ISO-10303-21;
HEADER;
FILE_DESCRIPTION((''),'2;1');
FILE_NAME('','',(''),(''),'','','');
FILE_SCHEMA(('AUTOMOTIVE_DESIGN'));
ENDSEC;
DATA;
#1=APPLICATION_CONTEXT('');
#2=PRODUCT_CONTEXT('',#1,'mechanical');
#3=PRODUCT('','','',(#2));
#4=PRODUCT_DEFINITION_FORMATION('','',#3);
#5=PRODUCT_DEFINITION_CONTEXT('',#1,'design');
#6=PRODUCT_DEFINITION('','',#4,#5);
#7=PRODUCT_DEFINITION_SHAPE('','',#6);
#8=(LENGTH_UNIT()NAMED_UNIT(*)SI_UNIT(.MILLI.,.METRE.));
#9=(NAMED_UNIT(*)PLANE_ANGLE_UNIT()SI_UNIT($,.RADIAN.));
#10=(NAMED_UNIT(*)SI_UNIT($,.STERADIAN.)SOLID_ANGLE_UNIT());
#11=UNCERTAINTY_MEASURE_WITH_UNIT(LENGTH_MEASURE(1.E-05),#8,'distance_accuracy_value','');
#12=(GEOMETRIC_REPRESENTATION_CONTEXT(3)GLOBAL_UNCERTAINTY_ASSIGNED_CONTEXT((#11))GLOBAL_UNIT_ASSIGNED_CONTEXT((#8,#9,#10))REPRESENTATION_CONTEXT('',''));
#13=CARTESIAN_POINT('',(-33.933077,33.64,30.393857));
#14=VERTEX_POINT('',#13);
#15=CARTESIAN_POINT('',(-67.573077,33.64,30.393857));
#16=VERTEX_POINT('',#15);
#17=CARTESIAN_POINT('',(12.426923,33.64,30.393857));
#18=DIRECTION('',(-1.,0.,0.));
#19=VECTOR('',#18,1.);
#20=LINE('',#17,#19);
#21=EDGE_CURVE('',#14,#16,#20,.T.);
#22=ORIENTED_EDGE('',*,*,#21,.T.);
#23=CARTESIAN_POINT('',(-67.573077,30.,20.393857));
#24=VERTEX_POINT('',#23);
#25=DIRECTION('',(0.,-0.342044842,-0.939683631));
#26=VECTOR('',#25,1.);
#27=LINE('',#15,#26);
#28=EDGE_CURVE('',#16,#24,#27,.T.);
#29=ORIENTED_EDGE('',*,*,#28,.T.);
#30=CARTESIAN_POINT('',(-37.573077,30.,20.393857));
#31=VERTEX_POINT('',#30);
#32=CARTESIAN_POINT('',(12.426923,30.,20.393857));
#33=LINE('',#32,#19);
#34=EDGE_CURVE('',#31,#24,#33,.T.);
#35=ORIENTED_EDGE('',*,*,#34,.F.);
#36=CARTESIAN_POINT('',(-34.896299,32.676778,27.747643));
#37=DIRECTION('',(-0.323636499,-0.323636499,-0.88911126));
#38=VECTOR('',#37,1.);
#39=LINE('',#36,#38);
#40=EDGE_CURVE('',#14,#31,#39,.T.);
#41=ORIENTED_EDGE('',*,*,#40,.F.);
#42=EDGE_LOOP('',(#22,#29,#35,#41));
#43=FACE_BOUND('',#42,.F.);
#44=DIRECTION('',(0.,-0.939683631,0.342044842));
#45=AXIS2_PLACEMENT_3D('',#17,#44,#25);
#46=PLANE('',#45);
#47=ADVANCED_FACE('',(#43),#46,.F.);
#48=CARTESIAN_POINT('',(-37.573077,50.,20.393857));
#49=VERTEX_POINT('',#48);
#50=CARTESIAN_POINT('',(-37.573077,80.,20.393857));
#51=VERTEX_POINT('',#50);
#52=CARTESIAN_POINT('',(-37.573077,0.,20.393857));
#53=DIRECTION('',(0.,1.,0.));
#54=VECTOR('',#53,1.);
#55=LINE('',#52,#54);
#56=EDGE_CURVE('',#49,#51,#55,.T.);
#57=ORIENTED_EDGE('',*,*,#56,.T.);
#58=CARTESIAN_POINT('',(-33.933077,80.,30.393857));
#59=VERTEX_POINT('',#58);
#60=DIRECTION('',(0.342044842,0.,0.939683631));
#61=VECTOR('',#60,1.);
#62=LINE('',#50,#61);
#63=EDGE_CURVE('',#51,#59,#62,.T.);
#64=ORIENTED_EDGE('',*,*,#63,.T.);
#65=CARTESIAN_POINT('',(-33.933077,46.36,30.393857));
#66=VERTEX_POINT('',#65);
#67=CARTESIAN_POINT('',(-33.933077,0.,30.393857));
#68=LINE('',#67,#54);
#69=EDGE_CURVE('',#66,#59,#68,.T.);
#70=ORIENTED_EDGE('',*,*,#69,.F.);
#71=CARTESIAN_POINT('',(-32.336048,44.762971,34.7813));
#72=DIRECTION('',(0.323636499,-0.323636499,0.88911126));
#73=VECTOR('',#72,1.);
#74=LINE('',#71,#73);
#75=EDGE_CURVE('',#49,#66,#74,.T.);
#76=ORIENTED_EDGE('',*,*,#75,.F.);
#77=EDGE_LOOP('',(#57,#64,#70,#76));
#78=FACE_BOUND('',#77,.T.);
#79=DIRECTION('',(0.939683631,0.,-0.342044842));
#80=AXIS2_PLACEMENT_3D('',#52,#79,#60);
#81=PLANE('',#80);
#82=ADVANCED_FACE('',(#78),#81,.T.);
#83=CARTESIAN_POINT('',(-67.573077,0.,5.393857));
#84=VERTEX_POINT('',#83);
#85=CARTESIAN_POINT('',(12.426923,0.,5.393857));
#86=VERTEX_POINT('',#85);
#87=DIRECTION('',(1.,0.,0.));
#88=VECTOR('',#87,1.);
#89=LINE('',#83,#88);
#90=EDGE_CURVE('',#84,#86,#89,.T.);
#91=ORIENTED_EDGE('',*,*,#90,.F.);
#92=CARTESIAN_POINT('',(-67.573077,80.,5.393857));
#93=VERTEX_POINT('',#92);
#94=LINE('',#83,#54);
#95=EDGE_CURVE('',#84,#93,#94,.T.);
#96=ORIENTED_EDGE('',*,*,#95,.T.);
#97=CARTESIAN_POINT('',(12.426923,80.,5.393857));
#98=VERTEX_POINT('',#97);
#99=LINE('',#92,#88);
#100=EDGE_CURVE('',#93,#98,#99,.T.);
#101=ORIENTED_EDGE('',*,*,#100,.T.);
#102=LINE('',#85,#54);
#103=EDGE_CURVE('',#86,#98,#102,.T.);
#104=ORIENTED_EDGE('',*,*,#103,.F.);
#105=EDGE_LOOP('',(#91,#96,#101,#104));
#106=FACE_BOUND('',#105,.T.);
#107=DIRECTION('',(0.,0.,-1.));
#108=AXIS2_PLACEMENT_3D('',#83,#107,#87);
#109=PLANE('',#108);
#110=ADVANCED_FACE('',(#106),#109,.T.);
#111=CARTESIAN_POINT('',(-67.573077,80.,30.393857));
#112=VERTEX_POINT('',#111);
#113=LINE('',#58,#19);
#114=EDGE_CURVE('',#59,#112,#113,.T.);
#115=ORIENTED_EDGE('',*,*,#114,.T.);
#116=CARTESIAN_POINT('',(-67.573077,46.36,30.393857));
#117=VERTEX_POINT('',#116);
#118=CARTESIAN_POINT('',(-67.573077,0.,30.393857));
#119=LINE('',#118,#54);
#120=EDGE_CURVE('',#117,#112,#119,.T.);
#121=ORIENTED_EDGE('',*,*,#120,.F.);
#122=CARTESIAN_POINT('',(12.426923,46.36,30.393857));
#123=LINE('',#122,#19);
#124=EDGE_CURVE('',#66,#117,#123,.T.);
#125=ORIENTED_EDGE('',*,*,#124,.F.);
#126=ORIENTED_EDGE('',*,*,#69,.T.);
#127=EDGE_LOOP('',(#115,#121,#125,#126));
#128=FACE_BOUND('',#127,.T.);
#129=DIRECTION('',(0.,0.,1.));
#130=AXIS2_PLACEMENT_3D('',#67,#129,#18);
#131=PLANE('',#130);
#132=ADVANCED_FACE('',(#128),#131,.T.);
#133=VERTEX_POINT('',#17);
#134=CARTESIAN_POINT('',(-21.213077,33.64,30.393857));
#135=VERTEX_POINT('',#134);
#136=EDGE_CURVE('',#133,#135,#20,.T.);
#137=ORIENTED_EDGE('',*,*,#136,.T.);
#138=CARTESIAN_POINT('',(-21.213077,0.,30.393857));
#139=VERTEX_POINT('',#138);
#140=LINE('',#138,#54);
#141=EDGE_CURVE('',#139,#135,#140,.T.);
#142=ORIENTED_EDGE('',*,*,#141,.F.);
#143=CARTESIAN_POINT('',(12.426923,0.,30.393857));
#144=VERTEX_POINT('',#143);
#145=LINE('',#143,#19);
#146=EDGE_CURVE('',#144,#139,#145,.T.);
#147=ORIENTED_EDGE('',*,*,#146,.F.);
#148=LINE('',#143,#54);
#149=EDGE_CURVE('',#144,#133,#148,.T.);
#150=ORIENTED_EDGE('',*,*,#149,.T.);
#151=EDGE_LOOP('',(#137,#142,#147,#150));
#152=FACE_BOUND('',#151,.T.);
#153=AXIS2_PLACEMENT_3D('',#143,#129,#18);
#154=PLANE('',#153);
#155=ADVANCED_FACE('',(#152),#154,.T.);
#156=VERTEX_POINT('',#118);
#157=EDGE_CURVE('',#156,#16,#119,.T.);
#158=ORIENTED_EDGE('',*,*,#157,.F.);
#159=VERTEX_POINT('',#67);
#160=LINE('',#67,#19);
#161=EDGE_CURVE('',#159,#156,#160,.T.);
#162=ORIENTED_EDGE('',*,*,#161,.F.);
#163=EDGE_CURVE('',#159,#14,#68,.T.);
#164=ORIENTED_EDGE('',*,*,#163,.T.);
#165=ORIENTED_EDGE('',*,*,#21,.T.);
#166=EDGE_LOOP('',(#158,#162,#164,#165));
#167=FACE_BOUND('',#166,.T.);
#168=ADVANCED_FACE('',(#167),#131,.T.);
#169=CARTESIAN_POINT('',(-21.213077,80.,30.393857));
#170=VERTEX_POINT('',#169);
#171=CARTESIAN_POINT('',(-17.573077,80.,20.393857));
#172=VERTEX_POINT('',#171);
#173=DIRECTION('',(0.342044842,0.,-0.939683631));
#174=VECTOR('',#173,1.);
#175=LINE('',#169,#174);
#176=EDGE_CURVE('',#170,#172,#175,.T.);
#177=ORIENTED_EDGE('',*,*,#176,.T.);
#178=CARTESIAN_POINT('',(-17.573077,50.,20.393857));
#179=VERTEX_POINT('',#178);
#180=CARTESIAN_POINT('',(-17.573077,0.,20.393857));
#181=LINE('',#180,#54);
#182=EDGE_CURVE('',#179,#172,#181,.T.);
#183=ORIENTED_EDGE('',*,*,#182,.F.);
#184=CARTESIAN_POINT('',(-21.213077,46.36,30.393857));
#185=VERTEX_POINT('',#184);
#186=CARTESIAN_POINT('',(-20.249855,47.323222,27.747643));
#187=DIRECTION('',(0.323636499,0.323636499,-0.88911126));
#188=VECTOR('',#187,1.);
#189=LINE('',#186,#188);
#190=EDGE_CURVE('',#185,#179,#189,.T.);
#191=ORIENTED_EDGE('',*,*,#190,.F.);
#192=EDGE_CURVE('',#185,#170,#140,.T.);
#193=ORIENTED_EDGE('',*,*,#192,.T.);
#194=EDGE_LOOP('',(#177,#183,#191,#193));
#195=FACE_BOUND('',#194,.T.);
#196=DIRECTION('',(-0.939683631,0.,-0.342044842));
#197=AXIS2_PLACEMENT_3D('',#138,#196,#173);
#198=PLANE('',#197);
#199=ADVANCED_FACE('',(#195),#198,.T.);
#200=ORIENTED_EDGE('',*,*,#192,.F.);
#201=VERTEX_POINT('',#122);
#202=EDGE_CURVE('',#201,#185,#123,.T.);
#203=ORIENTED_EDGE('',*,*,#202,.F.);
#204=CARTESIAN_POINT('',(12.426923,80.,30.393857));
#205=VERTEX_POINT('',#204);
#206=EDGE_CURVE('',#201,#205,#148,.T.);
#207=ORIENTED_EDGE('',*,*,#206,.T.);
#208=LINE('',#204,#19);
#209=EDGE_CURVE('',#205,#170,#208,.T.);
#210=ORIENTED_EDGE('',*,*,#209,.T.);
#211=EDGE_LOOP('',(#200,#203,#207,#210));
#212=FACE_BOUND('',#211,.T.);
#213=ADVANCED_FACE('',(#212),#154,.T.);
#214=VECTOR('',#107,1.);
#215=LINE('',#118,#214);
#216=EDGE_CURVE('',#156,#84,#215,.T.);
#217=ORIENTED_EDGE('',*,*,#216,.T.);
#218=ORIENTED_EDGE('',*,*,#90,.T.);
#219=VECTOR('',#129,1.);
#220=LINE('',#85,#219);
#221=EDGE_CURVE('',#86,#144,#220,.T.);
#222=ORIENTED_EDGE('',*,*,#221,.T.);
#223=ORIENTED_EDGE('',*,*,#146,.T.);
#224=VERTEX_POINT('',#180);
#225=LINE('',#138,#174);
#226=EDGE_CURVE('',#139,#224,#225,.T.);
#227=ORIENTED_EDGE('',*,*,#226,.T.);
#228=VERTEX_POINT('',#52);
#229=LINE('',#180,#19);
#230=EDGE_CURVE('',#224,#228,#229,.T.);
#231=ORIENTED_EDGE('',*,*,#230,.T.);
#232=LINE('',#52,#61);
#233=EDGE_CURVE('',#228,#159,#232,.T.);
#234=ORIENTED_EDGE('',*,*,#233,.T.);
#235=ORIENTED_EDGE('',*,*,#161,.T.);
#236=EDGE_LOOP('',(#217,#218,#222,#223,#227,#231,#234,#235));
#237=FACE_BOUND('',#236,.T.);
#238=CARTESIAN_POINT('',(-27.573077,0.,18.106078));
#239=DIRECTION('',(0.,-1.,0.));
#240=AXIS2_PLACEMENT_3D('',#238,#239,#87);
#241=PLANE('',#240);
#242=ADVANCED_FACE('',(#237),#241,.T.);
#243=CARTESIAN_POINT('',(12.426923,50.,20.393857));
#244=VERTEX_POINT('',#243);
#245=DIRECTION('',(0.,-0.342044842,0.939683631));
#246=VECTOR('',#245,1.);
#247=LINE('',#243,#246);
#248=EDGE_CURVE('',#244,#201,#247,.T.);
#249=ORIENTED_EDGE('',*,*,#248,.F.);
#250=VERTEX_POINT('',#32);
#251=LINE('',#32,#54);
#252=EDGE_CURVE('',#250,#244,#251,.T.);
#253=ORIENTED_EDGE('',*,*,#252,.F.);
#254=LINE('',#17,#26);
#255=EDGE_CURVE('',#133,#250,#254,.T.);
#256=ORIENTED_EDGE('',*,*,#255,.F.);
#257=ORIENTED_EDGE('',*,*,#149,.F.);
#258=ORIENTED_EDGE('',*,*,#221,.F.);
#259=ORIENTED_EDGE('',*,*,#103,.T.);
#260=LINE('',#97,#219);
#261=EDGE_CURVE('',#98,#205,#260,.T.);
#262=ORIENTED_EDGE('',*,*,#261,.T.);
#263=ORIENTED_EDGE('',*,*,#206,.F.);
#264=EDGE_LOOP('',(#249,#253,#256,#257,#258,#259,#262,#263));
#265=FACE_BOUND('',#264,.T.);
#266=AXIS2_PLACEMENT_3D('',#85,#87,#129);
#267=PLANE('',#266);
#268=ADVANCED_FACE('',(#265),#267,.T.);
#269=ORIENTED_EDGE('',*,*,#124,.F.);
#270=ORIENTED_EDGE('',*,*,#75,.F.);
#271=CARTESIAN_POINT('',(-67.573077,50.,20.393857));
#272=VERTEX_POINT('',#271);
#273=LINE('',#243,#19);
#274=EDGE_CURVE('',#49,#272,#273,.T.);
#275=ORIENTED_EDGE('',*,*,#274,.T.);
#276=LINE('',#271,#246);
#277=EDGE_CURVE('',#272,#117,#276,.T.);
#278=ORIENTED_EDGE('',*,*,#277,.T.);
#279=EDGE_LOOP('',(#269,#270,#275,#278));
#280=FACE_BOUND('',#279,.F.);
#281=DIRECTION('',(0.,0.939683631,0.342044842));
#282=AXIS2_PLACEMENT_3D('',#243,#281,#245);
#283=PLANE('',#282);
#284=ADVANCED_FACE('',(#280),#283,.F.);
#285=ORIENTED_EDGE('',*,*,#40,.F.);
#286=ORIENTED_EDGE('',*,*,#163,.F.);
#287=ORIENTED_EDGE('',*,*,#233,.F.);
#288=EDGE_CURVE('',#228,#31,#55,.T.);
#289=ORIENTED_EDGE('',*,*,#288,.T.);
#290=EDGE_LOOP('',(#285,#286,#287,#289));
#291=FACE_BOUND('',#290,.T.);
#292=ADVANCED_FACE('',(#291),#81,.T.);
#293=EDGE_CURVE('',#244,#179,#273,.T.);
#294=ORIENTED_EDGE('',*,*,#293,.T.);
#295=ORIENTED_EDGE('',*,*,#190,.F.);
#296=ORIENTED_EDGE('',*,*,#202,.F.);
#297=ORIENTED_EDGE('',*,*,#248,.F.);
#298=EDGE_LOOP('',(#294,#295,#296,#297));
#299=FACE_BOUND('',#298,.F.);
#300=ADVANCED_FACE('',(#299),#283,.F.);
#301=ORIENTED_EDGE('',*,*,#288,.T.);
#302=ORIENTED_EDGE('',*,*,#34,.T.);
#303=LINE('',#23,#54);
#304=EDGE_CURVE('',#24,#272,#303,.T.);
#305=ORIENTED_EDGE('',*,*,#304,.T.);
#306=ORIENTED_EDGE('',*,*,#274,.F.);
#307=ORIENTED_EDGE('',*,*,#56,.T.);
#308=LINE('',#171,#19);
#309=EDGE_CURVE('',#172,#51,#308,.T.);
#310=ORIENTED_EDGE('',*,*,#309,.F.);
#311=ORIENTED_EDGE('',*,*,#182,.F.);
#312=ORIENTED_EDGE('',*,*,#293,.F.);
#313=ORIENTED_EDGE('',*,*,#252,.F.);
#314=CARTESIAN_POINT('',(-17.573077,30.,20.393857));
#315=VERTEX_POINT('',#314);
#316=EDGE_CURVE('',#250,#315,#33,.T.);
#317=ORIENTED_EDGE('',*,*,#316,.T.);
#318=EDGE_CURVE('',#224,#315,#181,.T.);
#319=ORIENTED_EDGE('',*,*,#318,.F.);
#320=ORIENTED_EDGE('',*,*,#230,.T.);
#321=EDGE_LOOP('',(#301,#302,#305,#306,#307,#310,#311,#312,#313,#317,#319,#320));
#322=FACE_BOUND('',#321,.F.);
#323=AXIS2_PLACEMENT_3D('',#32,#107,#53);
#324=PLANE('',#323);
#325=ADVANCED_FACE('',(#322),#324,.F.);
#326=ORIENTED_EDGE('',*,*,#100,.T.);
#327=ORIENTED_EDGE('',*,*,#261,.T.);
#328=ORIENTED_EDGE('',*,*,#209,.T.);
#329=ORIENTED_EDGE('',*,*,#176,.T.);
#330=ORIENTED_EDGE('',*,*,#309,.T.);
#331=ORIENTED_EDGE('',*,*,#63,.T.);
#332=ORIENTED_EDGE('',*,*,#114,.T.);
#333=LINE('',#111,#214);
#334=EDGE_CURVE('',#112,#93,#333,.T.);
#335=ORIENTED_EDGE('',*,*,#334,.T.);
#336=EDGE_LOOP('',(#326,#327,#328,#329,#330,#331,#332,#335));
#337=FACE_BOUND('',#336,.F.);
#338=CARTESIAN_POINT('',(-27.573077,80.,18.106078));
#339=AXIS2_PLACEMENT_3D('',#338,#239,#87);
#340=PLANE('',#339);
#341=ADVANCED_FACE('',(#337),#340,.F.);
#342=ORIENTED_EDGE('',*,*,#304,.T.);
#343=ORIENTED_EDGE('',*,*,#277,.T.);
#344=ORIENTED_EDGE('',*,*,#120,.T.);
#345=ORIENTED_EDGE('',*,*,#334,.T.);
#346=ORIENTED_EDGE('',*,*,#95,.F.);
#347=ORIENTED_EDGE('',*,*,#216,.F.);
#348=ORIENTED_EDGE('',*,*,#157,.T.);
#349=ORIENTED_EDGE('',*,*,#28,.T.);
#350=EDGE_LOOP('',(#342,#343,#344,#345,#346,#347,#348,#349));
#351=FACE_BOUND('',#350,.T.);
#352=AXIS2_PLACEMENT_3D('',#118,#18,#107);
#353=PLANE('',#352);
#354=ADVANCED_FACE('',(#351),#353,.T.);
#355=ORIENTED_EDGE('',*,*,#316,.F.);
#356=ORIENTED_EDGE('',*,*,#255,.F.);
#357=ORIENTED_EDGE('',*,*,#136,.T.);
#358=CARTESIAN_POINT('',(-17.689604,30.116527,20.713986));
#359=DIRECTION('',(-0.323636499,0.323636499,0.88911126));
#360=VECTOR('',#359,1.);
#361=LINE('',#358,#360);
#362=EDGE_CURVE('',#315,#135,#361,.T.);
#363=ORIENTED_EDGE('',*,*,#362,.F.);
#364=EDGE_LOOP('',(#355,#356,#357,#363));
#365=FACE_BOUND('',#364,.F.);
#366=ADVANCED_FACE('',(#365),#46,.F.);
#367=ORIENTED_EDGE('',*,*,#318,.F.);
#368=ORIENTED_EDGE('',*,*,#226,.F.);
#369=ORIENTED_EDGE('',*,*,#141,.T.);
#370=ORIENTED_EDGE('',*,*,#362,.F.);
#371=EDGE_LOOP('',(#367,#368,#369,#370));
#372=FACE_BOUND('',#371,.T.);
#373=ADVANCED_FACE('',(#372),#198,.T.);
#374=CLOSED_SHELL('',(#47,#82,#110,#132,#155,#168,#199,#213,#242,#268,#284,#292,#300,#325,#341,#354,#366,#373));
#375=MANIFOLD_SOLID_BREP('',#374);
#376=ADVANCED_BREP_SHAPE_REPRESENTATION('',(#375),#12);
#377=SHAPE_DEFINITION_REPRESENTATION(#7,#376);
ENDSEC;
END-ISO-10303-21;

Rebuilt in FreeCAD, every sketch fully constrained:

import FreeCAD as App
import Part
import Sketcher
from FreeCAD import Vector
Q = App.Units.Quantity

doc = App.newDocument("Part")
body = doc.addObject("PartDesign::Body", "Body")

# Sketch on XZ plane
sketch1 = body.newObject("Sketcher::SketchObject", "Sketch")
sketch1.AttachmentSupport = (doc.getObject("XZ_Plane"), [""])
sketch1.MapMode = "FlatFace"
sketch1.addGeometry([
    Part.LineSegment(Vector(-68, 5, 0), Vector(12, 5, 0)),  # 0
    Part.LineSegment(Vector(12, 5, 0), Vector(12, 30, 0)),  # 1
    Part.LineSegment(Vector(12, 30, 0), Vector(-21, 30, 0)),  # 2
    Part.LineSegment(Vector(-21, 30, 0), Vector(-18, 20, 0)),  # 3
    Part.LineSegment(Vector(-18, 20, 0), Vector(-38, 20, 0)),  # 4
    Part.LineSegment(Vector(-38, 20, 0), Vector(-34, 30, 0)),  # 5
    Part.LineSegment(Vector(-34, 30, 0), Vector(-68, 30, 0)),  # 6
    Part.LineSegment(Vector(-68, 30, 0), Vector(-68, 5, 0)),  # 7
], False)
sketch1.addConstraint([
    Sketcher.Constraint("Coincident", 0, 2, 1, 1),
    Sketcher.Constraint("Coincident", 1, 2, 2, 1),
    Sketcher.Constraint("Coincident", 2, 2, 3, 1),
    Sketcher.Constraint("Coincident", 3, 2, 4, 1),
    Sketcher.Constraint("Coincident", 4, 2, 5, 1),
    Sketcher.Constraint("Coincident", 5, 2, 6, 1),
    Sketcher.Constraint("Coincident", 6, 2, 7, 1),
    Sketcher.Constraint("Coincident", 7, 2, 0, 1),
    Sketcher.Constraint("Horizontal", 0),
    Sketcher.Constraint("Vertical", 1),
    Sketcher.Constraint("Horizontal", 2),
    Sketcher.Constraint("Horizontal", 4),
    Sketcher.Constraint("Horizontal", 6),
    Sketcher.Constraint("Vertical", 7),
    Sketcher.Constraint("Horizontal", 2, 2, 5, 2),
    Sketcher.Constraint("Equal", 2, 6),
    Sketcher.Constraint("Equal", 3, 5),
    Sketcher.Constraint("DistanceX", 0, 1, 0, 2, Q("80 mm")),
    Sketcher.Constraint("DistanceX", 4, 2, 4, 1, Q("20 mm")),
    Sketcher.Constraint("DistanceY", 1, 1, 1, 2, Q("25 mm")),
    Sketcher.Constraint("DistanceY", 3, 2, 2, 2, Q("10 mm")),
    Sketcher.Constraint("DistanceX", 2, 2, 2, 1, Q("33.64 mm")),
    Sketcher.Constraint("DistanceX", -1, 1, 0, 2, Q("12.426923 mm")),
    Sketcher.Constraint("DistanceY", -1, 1, 0, 2, Q("5.393857 mm")),
])
pad1 = body.newObject("PartDesign::Pad", "Pad")
pad1.Profile = sketch1
pad1.Length = 80
pad1.Reversed = True

# Sketch on YZ plane
sketch2 = body.newObject("Sketcher::SketchObject", "Sketch001")
sketch2.AttachmentSupport = (doc.getObject("YZ_Plane"), [""])
sketch2.MapMode = "FlatFace"
sketch2.AttachmentOffset = App.Placement(Vector(0, 0, 12.426923), App.Rotation())
sketch2.addGeometry([
    Part.LineSegment(Vector(34, 30, 0), Vector(30, 20, 0)),
    Part.LineSegment(Vector(30, 20, 0), Vector(50, 20, 0)),
    Part.LineSegment(Vector(50, 20, 0), Vector(46, 30, 0)),
    Part.LineSegment(Vector(46, 30, 0), Vector(34, 30, 0)),
], False)
sketch2.addConstraint([
    Sketcher.Constraint("Coincident", 0, 2, 1, 1),
    Sketcher.Constraint("Coincident", 1, 2, 2, 1),
    Sketcher.Constraint("Coincident", 2, 2, 3, 1),
    Sketcher.Constraint("Coincident", 3, 2, 0, 1),
    Sketcher.Constraint("Horizontal", 1),
    Sketcher.Constraint("Horizontal", 3),
    Sketcher.Constraint("Equal", 0, 2),
    Sketcher.Constraint("DistanceX", 1, 1, 1, 2, Q("20 mm")),
    Sketcher.Constraint("DistanceX", -1, 1, 0, 2, Q("30 mm")),
    Sketcher.Constraint("DistanceY", 1, 2, 2, 2, Q("10 mm")),
    Sketcher.Constraint("DistanceX", 3, 2, 3, 1, Q("12.72 mm")),
    Sketcher.Constraint("DistanceY", -1, 1, 0, 2, Q("20.393857 mm")),
])
pocket1 = body.newObject("PartDesign::Pocket", "Pocket")
pocket1.Profile = sketch2
pocket1.Length = 80

doc.recompute()
